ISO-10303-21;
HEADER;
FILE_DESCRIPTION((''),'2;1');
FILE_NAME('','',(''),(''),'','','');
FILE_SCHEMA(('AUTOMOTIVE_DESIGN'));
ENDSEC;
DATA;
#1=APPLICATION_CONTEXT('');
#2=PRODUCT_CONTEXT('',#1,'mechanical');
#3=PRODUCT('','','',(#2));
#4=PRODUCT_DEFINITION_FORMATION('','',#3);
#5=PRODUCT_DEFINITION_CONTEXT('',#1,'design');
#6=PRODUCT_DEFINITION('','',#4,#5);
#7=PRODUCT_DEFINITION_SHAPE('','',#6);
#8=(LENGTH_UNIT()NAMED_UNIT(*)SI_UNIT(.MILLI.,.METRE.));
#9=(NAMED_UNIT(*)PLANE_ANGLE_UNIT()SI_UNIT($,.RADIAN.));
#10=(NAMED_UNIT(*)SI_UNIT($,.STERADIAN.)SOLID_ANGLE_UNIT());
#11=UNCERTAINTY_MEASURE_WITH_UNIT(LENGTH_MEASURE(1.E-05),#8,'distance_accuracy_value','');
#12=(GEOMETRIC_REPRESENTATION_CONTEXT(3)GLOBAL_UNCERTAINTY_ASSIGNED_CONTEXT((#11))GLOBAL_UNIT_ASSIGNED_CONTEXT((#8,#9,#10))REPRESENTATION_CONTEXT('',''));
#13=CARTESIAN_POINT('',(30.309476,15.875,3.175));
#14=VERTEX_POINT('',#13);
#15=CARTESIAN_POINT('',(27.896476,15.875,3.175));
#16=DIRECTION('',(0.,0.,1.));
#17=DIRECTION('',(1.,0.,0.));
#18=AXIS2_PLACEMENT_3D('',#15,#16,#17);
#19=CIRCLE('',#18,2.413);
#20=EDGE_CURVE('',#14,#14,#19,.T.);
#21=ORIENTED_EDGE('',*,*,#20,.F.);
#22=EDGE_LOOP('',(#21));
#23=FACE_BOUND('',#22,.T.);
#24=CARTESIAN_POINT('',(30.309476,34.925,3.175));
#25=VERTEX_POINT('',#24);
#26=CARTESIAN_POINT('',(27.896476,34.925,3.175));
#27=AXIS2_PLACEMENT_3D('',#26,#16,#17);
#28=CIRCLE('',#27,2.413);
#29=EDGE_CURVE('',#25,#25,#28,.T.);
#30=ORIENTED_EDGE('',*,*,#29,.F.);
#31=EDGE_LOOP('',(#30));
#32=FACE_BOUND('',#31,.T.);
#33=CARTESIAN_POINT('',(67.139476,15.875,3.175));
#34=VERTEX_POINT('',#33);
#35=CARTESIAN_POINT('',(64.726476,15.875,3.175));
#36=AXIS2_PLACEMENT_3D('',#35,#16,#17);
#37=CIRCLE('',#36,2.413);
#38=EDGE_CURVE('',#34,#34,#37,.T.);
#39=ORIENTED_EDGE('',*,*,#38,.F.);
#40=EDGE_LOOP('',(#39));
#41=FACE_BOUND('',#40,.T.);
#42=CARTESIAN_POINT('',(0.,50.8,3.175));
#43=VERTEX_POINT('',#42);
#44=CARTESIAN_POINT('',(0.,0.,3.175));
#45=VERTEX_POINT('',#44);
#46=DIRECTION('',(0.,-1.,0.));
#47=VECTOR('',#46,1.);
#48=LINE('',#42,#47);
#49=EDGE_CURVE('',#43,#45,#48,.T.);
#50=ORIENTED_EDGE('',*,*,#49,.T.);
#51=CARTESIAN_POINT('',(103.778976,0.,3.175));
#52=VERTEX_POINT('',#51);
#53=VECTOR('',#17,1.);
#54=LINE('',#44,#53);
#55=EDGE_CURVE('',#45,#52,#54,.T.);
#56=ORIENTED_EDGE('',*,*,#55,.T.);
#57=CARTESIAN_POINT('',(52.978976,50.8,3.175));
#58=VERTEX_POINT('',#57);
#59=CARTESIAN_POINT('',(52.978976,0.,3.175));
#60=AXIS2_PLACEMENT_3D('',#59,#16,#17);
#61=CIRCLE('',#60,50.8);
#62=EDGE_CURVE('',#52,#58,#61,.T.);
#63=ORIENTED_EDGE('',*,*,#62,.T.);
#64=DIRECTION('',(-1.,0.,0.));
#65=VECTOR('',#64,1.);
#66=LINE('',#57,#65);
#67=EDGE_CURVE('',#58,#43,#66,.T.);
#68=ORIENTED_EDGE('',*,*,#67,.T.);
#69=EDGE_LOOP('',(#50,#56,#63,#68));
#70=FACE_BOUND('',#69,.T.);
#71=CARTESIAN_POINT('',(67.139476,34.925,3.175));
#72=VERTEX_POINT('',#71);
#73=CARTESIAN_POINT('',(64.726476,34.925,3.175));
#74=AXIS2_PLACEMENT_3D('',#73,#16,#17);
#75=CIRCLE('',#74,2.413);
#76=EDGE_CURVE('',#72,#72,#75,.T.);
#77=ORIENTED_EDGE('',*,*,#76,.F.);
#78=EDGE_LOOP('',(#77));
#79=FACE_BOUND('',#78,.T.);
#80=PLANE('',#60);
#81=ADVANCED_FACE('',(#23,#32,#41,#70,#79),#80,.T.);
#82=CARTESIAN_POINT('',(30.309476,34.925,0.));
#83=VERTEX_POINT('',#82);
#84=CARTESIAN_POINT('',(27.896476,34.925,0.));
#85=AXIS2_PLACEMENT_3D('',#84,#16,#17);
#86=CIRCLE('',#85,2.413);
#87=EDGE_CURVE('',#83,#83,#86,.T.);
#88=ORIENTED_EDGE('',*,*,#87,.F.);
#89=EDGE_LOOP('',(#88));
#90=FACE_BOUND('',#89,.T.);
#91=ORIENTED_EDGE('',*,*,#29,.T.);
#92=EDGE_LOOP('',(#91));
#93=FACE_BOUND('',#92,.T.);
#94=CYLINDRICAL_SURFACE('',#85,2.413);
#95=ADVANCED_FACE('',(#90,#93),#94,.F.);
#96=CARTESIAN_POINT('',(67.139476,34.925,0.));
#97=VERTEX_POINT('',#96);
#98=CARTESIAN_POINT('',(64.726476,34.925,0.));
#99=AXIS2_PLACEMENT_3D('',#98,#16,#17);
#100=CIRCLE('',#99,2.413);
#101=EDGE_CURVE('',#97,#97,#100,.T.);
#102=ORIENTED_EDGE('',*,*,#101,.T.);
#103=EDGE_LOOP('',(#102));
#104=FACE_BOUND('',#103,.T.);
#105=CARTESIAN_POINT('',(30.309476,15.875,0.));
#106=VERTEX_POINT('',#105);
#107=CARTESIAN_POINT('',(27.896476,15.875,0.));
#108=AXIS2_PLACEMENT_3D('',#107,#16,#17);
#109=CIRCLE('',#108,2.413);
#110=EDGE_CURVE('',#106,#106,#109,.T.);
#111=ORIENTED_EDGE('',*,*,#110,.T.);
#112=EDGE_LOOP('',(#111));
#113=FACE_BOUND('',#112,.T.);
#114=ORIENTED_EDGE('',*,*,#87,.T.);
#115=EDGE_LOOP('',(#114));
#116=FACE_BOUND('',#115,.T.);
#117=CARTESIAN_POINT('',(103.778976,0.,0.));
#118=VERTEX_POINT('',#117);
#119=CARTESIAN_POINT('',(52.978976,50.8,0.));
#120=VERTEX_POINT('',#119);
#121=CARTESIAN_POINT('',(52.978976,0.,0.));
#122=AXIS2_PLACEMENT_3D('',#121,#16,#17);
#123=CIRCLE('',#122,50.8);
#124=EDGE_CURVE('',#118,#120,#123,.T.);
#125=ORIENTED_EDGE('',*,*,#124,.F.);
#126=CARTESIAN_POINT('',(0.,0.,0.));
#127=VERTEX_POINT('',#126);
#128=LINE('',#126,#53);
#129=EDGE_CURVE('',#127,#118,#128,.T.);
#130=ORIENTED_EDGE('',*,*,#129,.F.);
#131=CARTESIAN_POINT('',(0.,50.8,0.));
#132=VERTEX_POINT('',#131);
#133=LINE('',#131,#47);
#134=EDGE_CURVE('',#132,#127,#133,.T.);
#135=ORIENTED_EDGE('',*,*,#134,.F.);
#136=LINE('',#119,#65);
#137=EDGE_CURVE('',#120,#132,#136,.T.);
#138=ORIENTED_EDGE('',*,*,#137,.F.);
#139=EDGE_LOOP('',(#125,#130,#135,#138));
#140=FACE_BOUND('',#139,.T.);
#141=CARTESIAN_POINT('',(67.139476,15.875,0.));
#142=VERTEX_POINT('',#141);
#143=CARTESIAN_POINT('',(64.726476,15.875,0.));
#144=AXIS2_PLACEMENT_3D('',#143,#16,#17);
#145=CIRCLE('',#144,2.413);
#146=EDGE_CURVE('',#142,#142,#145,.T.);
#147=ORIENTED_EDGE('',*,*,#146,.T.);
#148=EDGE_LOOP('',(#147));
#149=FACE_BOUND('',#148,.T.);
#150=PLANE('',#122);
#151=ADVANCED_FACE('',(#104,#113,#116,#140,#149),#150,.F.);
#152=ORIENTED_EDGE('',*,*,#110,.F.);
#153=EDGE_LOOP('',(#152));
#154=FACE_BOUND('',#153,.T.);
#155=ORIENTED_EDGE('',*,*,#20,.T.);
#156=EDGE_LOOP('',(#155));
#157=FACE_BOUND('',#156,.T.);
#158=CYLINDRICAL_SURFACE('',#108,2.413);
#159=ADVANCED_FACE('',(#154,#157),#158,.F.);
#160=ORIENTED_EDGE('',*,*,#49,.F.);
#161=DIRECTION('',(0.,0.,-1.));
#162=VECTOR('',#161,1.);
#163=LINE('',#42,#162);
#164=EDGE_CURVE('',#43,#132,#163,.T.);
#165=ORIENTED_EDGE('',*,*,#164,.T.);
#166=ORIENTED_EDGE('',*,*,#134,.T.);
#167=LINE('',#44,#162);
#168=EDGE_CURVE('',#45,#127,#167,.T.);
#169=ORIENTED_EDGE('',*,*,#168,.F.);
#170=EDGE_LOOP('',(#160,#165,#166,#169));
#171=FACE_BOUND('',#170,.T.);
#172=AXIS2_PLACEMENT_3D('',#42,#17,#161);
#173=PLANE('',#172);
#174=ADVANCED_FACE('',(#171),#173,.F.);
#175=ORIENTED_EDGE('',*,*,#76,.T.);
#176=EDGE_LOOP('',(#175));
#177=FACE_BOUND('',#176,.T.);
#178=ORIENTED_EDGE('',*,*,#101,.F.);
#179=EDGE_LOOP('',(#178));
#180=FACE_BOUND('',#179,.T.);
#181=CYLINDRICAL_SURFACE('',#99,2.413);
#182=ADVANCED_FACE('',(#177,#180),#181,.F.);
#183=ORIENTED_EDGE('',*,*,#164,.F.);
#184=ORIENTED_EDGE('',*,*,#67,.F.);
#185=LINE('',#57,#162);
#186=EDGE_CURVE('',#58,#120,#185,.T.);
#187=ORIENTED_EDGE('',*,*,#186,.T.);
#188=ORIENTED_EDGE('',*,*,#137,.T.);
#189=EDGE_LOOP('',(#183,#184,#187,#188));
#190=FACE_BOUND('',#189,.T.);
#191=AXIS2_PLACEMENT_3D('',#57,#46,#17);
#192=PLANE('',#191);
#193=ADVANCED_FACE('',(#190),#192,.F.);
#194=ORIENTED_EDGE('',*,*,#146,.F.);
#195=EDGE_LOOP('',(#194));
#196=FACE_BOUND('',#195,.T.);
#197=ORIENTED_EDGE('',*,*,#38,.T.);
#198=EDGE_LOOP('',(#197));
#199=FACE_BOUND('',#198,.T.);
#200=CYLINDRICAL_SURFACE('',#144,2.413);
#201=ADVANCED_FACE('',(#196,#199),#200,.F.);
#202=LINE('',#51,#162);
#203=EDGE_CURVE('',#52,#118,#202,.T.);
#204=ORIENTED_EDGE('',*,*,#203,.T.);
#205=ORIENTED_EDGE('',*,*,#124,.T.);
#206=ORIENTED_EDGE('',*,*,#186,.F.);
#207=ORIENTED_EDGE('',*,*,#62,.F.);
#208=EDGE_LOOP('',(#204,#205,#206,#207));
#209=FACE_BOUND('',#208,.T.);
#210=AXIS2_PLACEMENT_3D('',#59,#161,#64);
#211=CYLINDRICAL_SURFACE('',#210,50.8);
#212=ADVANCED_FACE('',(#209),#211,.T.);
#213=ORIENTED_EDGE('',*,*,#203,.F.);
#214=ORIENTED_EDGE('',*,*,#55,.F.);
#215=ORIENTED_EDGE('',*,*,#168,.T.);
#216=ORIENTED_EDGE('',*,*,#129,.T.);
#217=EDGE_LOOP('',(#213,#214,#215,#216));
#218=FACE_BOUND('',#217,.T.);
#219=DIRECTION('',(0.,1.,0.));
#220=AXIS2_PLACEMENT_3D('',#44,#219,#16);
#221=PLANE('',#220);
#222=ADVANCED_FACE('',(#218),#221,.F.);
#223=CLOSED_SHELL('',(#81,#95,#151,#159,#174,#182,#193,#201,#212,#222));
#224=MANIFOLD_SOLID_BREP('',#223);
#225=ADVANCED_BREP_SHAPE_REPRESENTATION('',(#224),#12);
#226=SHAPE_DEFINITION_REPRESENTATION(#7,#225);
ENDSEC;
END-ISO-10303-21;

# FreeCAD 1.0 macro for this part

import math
import FreeCAD as App
import Part
import Sketcher
Q = App.Units.Quantity

doc = App.newDocument("Part")
body = doc.addObject("PartDesign::Body", "Body")

# Sketch on XY plane
sketch1 = body.newObject("Sketcher::SketchObject", "Sketch")
sketch1.AttachmentSupport = (doc.getObject("XY_Plane"), [""])
sketch1.MapMode = "FlatFace"
sketch1.addGeometry(Part.LineSegment(App.Vector(0, 51, 0), App.Vector(0, 0, 0)), False)
sketch1.addGeometry(Part.LineSegment(App.Vector(0, 0, 0), App.Vector(104, 0, 0)), False)
sketch1.addGeometry(Part.ArcOfCircle(Part.Circle(App.Vector(53, 0, 0), App.Vector(0, 0, 1), 51), math.radians(0), math.radians(90)), False)
sketch1.addGeometry(Part.LineSegment(App.Vector(53, 51, 0), App.Vector(0, 51, 0)), False)
sketch1.addConstraint(Sketcher.Constraint("Coincident", 0, 2, 1, 1))
sketch1.addConstraint(Sketcher.Constraint("Coincident", 1, 2, 2, 1))
sketch1.addConstraint(Sketcher.Constraint("Tangent", 2, 2, 3, 1))
sketch1.addConstraint(Sketcher.Constraint("Coincident", 3, 2, 0, 1))
sketch1.addConstraint(Sketcher.Constraint("Vertical", 0))
sketch1.addConstraint(Sketcher.Constraint("Horizontal", 1))
sketch1.addConstraint(Sketcher.Constraint("Horizontal", 3))
sketch1.addConstraint(Sketcher.Constraint("Coincident", 0, 2, -1, 1))
sketch1.addConstraint(Sketcher.Constraint("PointOnObject", 2, 3, -1))
sketch1.addConstraint(Sketcher.Constraint("Radius", 2, Q("2 in")))
sketch1.addConstraint(Sketcher.Constraint("DistanceX", 1, 1, 1, 2, 103.778976))
pad1 = body.newObject("PartDesign::Pad", "Pad")
pad1.Profile = sketch1
pad1.Length = Q("0.125 in")

# Sketch on XY plane
sketch2 = body.newObject("Sketcher::SketchObject", "Sketch001")
sketch2.AttachmentSupport = (doc.getObject("XY_Plane"), [""])
sketch2.MapMode = "FlatFace"
sketch2.AttachmentOffset = App.Placement(App.Vector(0, 0, 0.125 * 25.4), App.Rotation())
sketch2.addGeometry(Part.Circle(App.Vector(64.7, 34.9, 0), App.Vector(0, 0, 1), 2.4), False)
sketch2.addGeometry(Part.Circle(App.Vector(27.9, 34.9, 0), App.Vector(0, 0, 1), 2.4), False)
sketch2.addGeometry(Part.Circle(App.Vector(27.9, 15.9, 0), App.Vector(0, 0, 1), 2.4), False)
sketch2.addGeometry(Part.Circle(App.Vector(64.7, 15.9, 0), App.Vector(0, 0, 1), 2.4), False)
sketch2.addConstraint(Sketcher.Constraint("Equal", 0, 1))
sketch2.addConstraint(Sketcher.Constraint("Equal", 1, 2))
sketch2.addConstraint(Sketcher.Constraint("Equal", 2, 3))
sketch2.addConstraint(Sketcher.Constraint("Horizontal", 0, 3, 1, 3))
sketch2.addConstraint(Sketcher.Constraint("Horizontal", 2, 3, 3, 3))
sketch2.addConstraint(Sketcher.Constraint("Vertical", 1, 3, 2, 3))
sketch2.addConstraint(Sketcher.Constraint("Vertical", 0, 3, 3, 3))
sketch2.addConstraint(Sketcher.Constraint("Diameter", 0, Q("0.19 in")))
sketch2.addConstraint(Sketcher.Constraint("DistanceX", 1, 3, 0, 3, Q("1.45 in")))
sketch2.addConstraint(Sketcher.Constraint("DistanceY", 2, 3, 1, 3, Q("0.75 in")))
sketch2.addConstraint(Sketcher.Constraint("DistanceY", -1, 1, 0, 3, Q("1.375 in")))
sketch2.addConstraint(Sketcher.Constraint("DistanceX", -1, 1, 0, 3, 64.726476))
pocket1 = body.newObject("PartDesign::Pocket", "Pocket")
pocket1.Profile = sketch2
pocket1.Type = "ThroughAll"
pocket1.Midplane = True

doc.recompute()
